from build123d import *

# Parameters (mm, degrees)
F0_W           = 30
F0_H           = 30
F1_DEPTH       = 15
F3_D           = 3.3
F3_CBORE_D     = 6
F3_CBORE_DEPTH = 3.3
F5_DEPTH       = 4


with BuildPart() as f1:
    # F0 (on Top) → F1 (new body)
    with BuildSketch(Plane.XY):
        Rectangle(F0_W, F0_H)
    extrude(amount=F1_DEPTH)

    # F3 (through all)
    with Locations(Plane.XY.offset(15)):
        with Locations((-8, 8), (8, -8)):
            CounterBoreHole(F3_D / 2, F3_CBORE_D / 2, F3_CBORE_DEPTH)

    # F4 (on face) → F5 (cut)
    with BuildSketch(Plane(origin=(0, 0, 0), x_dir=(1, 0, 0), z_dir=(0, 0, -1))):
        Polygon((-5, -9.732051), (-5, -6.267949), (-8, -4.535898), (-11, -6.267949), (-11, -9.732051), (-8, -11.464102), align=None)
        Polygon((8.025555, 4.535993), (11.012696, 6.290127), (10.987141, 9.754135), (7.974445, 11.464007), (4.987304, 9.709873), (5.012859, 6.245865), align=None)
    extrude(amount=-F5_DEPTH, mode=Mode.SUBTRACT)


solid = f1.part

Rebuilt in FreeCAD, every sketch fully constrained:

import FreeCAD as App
import Part
import Sketcher
Q = App.Units.Quantity

doc = App.newDocument("Part")
params = doc.addObject("Spreadsheet::Sheet", "Params")
for row, (alias, value) in enumerate([
    ("sketch1_width", "30 mm"),
    ("pad1_length", "15 mm"),
    ("sketch2_diameter", "3.3 mm"),
    ("hole_diameter", "3.3 mm"),
    ("hole_cbore_diameter", "6 mm"),
    ("hole_cbore_depth", "3.3 mm"),
    ("pocket1_length", "4 mm"),
], start=1):
    params.set(f"A{row}", alias)
    params.set(f"B{row}", "=" + value)
    params.setAlias(f"B{row}", alias)

body = doc.addObject("PartDesign::Body", "Body")

# Sketch on XY plane
sketch1 = body.newObject("Sketcher::SketchObject", "Sketch")
sketch1.AttachmentSupport = (doc.getObject("XY_Plane"), [""])
sketch1.MapMode = "FlatFace"
sketch1.addGeometry([
    Part.LineSegment(App.Vector(-15, 15, 0), App.Vector(-15, -15, 0)),
    Part.LineSegment(App.Vector(-15, -15, 0), App.Vector(15, -15, 0)),
    Part.LineSegment(App.Vector(15, -15, 0), App.Vector(15, 15, 0)),
    Part.LineSegment(App.Vector(15, 15, 0), App.Vector(-15, 15, 0)),
], False)
sketch1.addConstraint([
    Sketcher.Constraint("Coincident", 0, 2, 1, 1),
    Sketcher.Constraint("Coincident", 1, 2, 2, 1),
    Sketcher.Constraint("Coincident", 2, 2, 3, 1),
    Sketcher.Constraint("Coincident", 3, 2, 0, 1),
    Sketcher.Constraint("Vertical", 0),
    Sketcher.Constraint("Horizontal", 1),
    Sketcher.Constraint("Vertical", 2),
    Sketcher.Constraint("Horizontal", 3),
    Sketcher.Constraint("Symmetric", 0, 2, 2, 2, -1, 1),
    Sketcher.Constraint("Equal", 3, 0),
    Sketcher.Constraint("DistanceX", 1, 1, 1, 2, Q("30 mm")),
])
sketch1.setExpression("Constraints[10]", "Params.sketch1_width")
pad1 = body.newObject("PartDesign::Pad", "Pad")
pad1.Profile = sketch1
pad1.setExpression("Length", "Params.pad1_length")

# Sketch on XY plane
sketch2 = body.newObject("Sketcher::SketchObject", "Sketch001")
sketch2.AttachmentSupport = (doc.getObject("XY_Plane"), [""])
sketch2.MapMode = "FlatFace"
sketch2.AttachmentOffset = App.Placement(App.Vector(0, 0, 15), App.Rotation())
sketch2.addGeometry([
    Part.Circle(App.Vector(-8, 8, 0), App.Vector(0, 0, 1), 1.6),
    Part.Circle(App.Vector(8, -8, 0), App.Vector(0, 0, 1), 1.6),
], False)
sketch2.addConstraint([
    Sketcher.Constraint("Equal", 0, 1),
    Sketcher.Constraint("Symmetric", 0, 3, 1, 3, -1, 1),
    Sketcher.Constraint("Diameter", 0, Q("3.3 mm")),
    Sketcher.Constraint("DistanceX", 0, 3, -1, 1, Q("8 mm")),
    Sketcher.Constraint("DistanceY", -1, 1, 0, 3, Q("8 mm")),
])
sketch2.setExpression("Constraints[2]", "Params.sketch2_diameter")
doc.recompute()
hole = body.newObject("PartDesign::Hole", "Hole")
hole.Profile = sketch2
hole.ThreadType = "None"
hole.setExpression("Diameter", "Params.hole_diameter")
hole.DepthType = "ThroughAll"
hole.HoleCutType = "Counterbore"
hole.setExpression("HoleCutDiameter", "Params.hole_cbore_diameter")
hole.setExpression("HoleCutDepth", "Params.hole_cbore_depth")

# Sketch on XY plane
sketch3 = body.newObject("Sketcher::SketchObject", "Sketch002")
sketch3.AttachmentSupport = (doc.getObject("XY_Plane"), [""])
sketch3.MapMode = "FlatFace"
sketch3.addGeometry([
    Part.LineSegment(App.Vector(-5, 9.7, 0), App.Vector(-5, 6.3, 0)),  # 0
    Part.LineSegment(App.Vector(-5, 6.3, 0), App.Vector(-8, 4.5, 0)),  # 1
    Part.LineSegment(App.Vector(-8, 4.5, 0), App.Vector(-11, 6.3, 0)),  # 2
    Part.LineSegment(App.Vector(-11, 6.3, 0), App.Vector(-11, 9.7, 0)),  # 3
    Part.LineSegment(App.Vector(-11, 9.7, 0), App.Vector(-8, 11.5, 0)),  # 4
    Part.LineSegment(App.Vector(-8, 11.5, 0), App.Vector(-5, 9.7, 0)),  # 5
    Part.LineSegment(App.Vector(8, -4.5, 0), App.Vector(11, -6.3, 0)),  # 6
    Part.LineSegment(App.Vector(11, -6.3, 0), App.Vector(11, -9.8, 0)),  # 7
    Part.LineSegment(App.Vector(11, -9.8, 0), App.Vector(8, -11.5, 0)),  # 8
    Part.LineSegment(App.Vector(8, -11.5, 0), App.Vector(5, -9.7, 0)),  # 9
    Part.LineSegment(App.Vector(5, -9.7, 0), App.Vector(5, -6.2, 0)),  # 10
    Part.LineSegment(App.Vector(5, -6.2, 0), App.Vector(8, -4.5, 0)),  # 11
], False)
sketch3.addConstraint([
    Sketcher.Constraint("Coincident", 0, 2, 1, 1),
    Sketcher.Constraint("Coincident", 1, 2, 2, 1),
    Sketcher.Constraint("Coincident", 2, 2, 3, 1),
    Sketcher.Constraint("Coincident", 3, 2, 4, 1),
    Sketcher.Constraint("Coincident", 4, 2, 5, 1),
    Sketcher.Constraint("Coincident", 5, 2, 0, 1),
    Sketcher.Constraint("Coincident", 6, 2, 7, 1),
    Sketcher.Constraint("Coincident", 7, 2, 8, 1),
    Sketcher.Constraint("Coincident", 8, 2, 9, 1),
    Sketcher.Constraint("Coincident", 9, 2, 10, 1),
    Sketcher.Constraint("Coincident", 10, 2, 11, 1),
    Sketcher.Constraint("Coincident", 11, 2, 6, 1),
    Sketcher.Constraint("Vertical", 0),
    Sketcher.Constraint("Vertical", 3),
    Sketcher.Constraint("Parallel", 1, 4),
    Sketcher.Constraint("Parallel", 2, 5),
    Sketcher.Constraint("Parallel", 6, 9),
    Sketcher.Constraint("Parallel", 7, 10),
    Sketcher.Constraint("Parallel", 8, 11),
    Sketcher.Constraint("Horizontal", 0, 2, 2, 2),
    Sketcher.Constraint("Horizontal", 3, 2, 5, 2),
    Sketcher.Constraint("Vertical", 1, 2, 4, 2),
    Sketcher.Constraint("Equal", 5, 6),
    Sketcher.Constraint("Equal", 6, 7),
    Sketcher.Constraint("Equal", 7, 8),
    Sketcher.Constraint("Equal", 8, 9),
    Sketcher.Constraint("Angle", 1, Q("-149.999997 deg")),
    Sketcher.Constraint("DistanceX", 0, 2, -1, 1, Q("5 mm")),
    Sketcher.Constraint("DistanceX", 1, 2, -1, 1, Q("8 mm")),
    Sketcher.Constraint("DistanceY", -1, 1, 1, 2, Q("4.535898 mm")),
    Sketcher.Constraint("DistanceY", 0, 2, 0, 1, Q("3.464102 mm")),
    Sketcher.Constraint("DistanceX", -1, 1, 7, 2, Q("10.987141 mm")),
    Sketcher.Constraint("DistanceX", -1, 1, 10, 2, Q("5.012859 mm")),
    Sketcher.Constraint("DistanceY", 6, 2, 5, 2, Q("16.022178 mm")),
    Sketcher.Constraint("DistanceX", 8, 2, 6, 2, Q("3.038251 mm")),
    Sketcher.Constraint("DistanceY", 8, 2, 6, 2, Q("5.17388 mm")),
])
pocket1 = body.newObject("PartDesign::Pocket", "Pocket")
pocket1.Profile = sketch3
pocket1.setExpression("Length", "Params.pocket1_length")
pocket1.Reversed = True

doc.recompute()
